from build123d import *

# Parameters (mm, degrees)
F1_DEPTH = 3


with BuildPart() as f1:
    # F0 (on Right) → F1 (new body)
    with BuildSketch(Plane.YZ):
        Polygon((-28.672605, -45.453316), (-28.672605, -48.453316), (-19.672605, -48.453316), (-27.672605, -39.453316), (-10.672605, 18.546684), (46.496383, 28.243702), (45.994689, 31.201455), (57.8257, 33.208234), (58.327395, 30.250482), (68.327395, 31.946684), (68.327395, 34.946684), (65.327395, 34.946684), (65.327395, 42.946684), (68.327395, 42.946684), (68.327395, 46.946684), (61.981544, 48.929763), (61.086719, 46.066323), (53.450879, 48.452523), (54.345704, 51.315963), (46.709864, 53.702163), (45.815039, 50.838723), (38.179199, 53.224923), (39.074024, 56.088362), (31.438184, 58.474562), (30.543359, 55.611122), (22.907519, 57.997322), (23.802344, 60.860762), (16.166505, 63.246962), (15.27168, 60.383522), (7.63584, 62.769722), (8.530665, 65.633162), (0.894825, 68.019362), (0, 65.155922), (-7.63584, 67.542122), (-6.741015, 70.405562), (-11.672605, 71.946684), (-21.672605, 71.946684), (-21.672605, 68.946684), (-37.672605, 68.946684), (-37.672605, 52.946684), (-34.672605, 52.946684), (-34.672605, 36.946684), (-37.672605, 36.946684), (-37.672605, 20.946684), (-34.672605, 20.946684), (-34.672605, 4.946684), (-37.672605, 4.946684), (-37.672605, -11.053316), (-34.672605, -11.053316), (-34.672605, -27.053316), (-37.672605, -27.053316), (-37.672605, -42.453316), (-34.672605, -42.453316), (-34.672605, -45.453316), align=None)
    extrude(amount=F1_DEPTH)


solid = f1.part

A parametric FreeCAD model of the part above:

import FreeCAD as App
import Part
import Sketcher

V = App.Vector

doc = App.newDocument("Part")
body = doc.addObject("PartDesign::Body", "Body")

# Sketch on YZ plane
sketch1 = body.newObject("Sketcher::SketchObject", "Sketch")
sketch1.AttachmentSupport = (doc.getObject("YZ_Plane"), [""])
sketch1.MapMode = "FlatFace"
sketch1.addGeometry([
    Part.LineSegment(V(-28.7, -45.5, 0), V(-28.7, -48.5, 0)),  # 0
    Part.LineSegment(V(-28.7, -48.5, 0), V(-19.7, -48.5, 0)),  # 1
    Part.LineSegment(V(-19.7, -48.5, 0), V(-27.7, -39.5, 0)),  # 2
    Part.LineSegment(V(-27.7, -39.5, 0), V(-10.7, 18.5, 0)),  # 3
    Part.LineSegment(V(-10.7, 18.5, 0), V(46.5, 28.2, 0)),  # 4
    Part.LineSegment(V(46.5, 28.2, 0), V(46, 31.2, 0)),  # 5
    Part.LineSegment(V(46, 31.2, 0), V(57.8, 33.2, 0)),  # 6
    Part.LineSegment(V(57.8, 33.2, 0), V(58.3, 30.3, 0)),  # 7
    Part.LineSegment(V(58.3, 30.3, 0), V(68.3, 31.9, 0)),  # 8
    Part.LineSegment(V(68.3, 31.9, 0), V(68.3, 34.9, 0)),  # 9
    Part.LineSegment(V(68.3, 34.9, 0), V(65.3, 34.9, 0)),  # 10
    Part.LineSegment(V(65.3, 34.9, 0), V(65.3, 42.9, 0)),  # 11
    Part.LineSegment(V(65.3, 42.9, 0), V(68.3, 42.9, 0)),  # 12
    Part.LineSegment(V(68.3, 42.9, 0), V(68.3, 46.9, 0)),  # 13
    Part.LineSegment(V(68.3, 46.9, 0), V(62, 48.9, 0)),  # 14
    Part.LineSegment(V(62, 48.9, 0), V(61.1, 46.1, 0)),  # 15
    Part.LineSegment(V(61.1, 46.1, 0), V(53.5, 48.5, 0)),  # 16
    Part.LineSegment(V(53.5, 48.5, 0), V(54.3, 51.3, 0)),  # 17
    Part.LineSegment(V(54.3, 51.3, 0), V(46.7, 53.7, 0)),  # 18
    Part.LineSegment(V(46.7, 53.7, 0), V(45.8, 50.8, 0)),  # 19
    Part.LineSegment(V(45.8, 50.8, 0), V(38.2, 53.2, 0)),  # 20
    Part.LineSegment(V(38.2, 53.2, 0), V(39.1, 56.1, 0)),  # 21
    Part.LineSegment(V(39.1, 56.1, 0), V(31.4, 58.5, 0)),  # 22
    Part.LineSegment(V(31.4, 58.5, 0), V(30.5, 55.6, 0)),  # 23
    Part.LineSegment(V(30.5, 55.6, 0), V(22.9, 58, 0)),  # 24
    Part.LineSegment(V(22.9, 58, 0), V(23.8, 60.9, 0)),  # 25
    Part.LineSegment(V(23.8, 60.9, 0), V(16.2, 63.2, 0)),  # 26
    Part.LineSegment(V(16.2, 63.2, 0), V(15.3, 60.4, 0)),  # 27
    Part.LineSegment(V(15.3, 60.4, 0), V(7.6, 62.8, 0)),  # 28
    Part.LineSegment(V(7.6, 62.8, 0), V(8.5, 65.6, 0)),  # 29
    Part.LineSegment(V(8.5, 65.6, 0), V(0.9, 68, 0)),  # 30
    Part.LineSegment(V(0.9, 68, 0), V(0, 65.2, 0)),  # 31
    Part.LineSegment(V(0, 65.2, 0), V(-7.6, 67.5, 0)),  # 32
    Part.LineSegment(V(-7.6, 67.5, 0), V(-6.7, 70.4, 0)),  # 33
    Part.LineSegment(V(-6.7, 70.4, 0), V(-11.7, 71.9, 0)),  # 34
    Part.LineSegment(V(-11.7, 71.9, 0), V(-21.7, 71.9, 0)),  # 35
    Part.LineSegment(V(-21.7, 71.9, 0), V(-21.7, 68.9, 0)),  # 36
    Part.LineSegment(V(-21.7, 68.9, 0), V(-37.7, 68.9, 0)),  # 37
    Part.LineSegment(V(-37.7, 68.9, 0), V(-37.7, 52.9, 0)),  # 38
    Part.LineSegment(V(-37.7, 52.9, 0), V(-34.7, 52.9, 0)),  # 39
    Part.LineSegment(V(-34.7, 52.9, 0), V(-34.7, 36.9, 0)),  # 40
    Part.LineSegment(V(-34.7, 36.9, 0), V(-37.7, 36.9, 0)),  # 41
    Part.LineSegment(V(-37.7, 36.9, 0), V(-37.7, 20.9, 0)),  # 42
    Part.LineSegment(V(-37.7, 20.9, 0), V(-34.7, 20.9, 0)),  # 43
    Part.LineSegment(V(-34.7, 20.9, 0), V(-34.7, 4.9, 0)),  # 44
    Part.LineSegment(V(-34.7, 4.9, 0), V(-37.7, 4.9, 0)),  # 45
    Part.LineSegment(V(-37.7, 4.9, 0), V(-37.7, -11.1, 0)),  # 46
    Part.LineSegment(V(-37.7, -11.1, 0), V(-34.7, -11.1, 0)),  # 47
    Part.LineSegment(V(-34.7, -11.1, 0), V(-34.7, -27.1, 0)),  # 48
    Part.LineSegment(V(-34.7, -27.1, 0), V(-37.7, -27.1, 0)),  # 49
    Part.LineSegment(V(-37.7, -27.1, 0), V(-37.7, -42.5, 0)),  # 50
    Part.LineSegment(V(-37.7, -42.5, 0), V(-34.7, -42.5, 0)),  # 51
    Part.LineSegment(V(-34.7, -42.5, 0), V(-34.7, -45.5, 0)),  # 52
    Part.LineSegment(V(-34.7, -45.5, 0), V(-28.7, -45.5, 0)),  # 53
], False)
sketch1.addConstraint([
    Sketcher.Constraint("Coincident", 0, 2, 1, 1),
    Sketcher.Constraint("Coincident", 1, 2, 2, 1),
    Sketcher.Constraint("Coincident", 2, 2, 3, 1),
    Sketcher.Constraint("Coincident", 3, 2, 4, 1),
    Sketcher.Constraint("Coincident", 4, 2, 5, 1),
    Sketcher.Constraint("Coincident", 5, 2, 6, 1),
    Sketcher.Constraint("Coincident", 6, 2, 7, 1),
    Sketcher.Constraint("Coincident", 7, 2, 8, 1),
    Sketcher.Constraint("Coincident", 8, 2, 9, 1),
    Sketcher.Constraint("Coincident", 9, 2, 10, 1),
    Sketcher.Constraint("Coincident", 10, 2, 11, 1),
    Sketcher.Constraint("Coincident", 11, 2, 12, 1),
    Sketcher.Constraint("Coincident", 12, 2, 13, 1),
    Sketcher.Constraint("Coincident", 13, 2, 14, 1),
    Sketcher.Constraint("Coincident", 14, 2, 15, 1),
    Sketcher.Constraint("Coincident", 15, 2, 16, 1),
    Sketcher.Constraint("Coincident", 16, 2, 17, 1),
    Sketcher.Constraint("Coincident", 17, 2, 18, 1),
    Sketcher.Constraint("Coincident", 18, 2, 19, 1),
    Sketcher.Constraint("Coincident", 19, 2, 20, 1),
    Sketcher.Constraint("Coincident", 20, 2, 21, 1),
    Sketcher.Constraint("Coincident", 21, 2, 22, 1),
    Sketcher.Constraint("Coincident", 22, 2, 23, 1),
    Sketcher.Constraint("Coincident", 23, 2, 24, 1),
    Sketcher.Constraint("Coincident", 24, 2, 25, 1),
    Sketcher.Constraint("Coincident", 25, 2, 26, 1),
    Sketcher.Constraint("Coincident", 26, 2, 27, 1),
    Sketcher.Constraint("Coincident", 27, 2, 28, 1),
    Sketcher.Constraint("Coincident", 28, 2, 29, 1),
    Sketcher.Constraint("Coincident", 29, 2, 30, 1),
    Sketcher.Constraint("Coincident", 30, 2, 31, 1),
    Sketcher.Constraint("Coincident", 31, 2, 32, 1),
    Sketcher.Constraint("Coincident", 32, 2, 33, 1),
    Sketcher.Constraint("Coincident", 33, 2, 34, 1),
    Sketcher.Constraint("Coincident", 34, 2, 35, 1),
    Sketcher.Constraint("Coincident", 35, 2, 36, 1),
    Sketcher.Constraint("Coincident", 36, 2, 37, 1),
    Sketcher.Constraint("Coincident", 37, 2, 38, 1),
    Sketcher.Constraint("Coincident", 38, 2, 39, 1),
    Sketcher.Constraint("Coincident", 39, 2, 40, 1),
    Sketcher.Constraint("Coincident", 40, 2, 41, 1),
    Sketcher.Constraint("Coincident", 41, 2, 42, 1),
    Sketcher.Constraint("Coincident", 42, 2, 43, 1),
    Sketcher.Constraint("Coincident", 43, 2, 44, 1),
    Sketcher.Constraint("Coincident", 44, 2, 45, 1),
    Sketcher.Constraint("Coincident", 45, 2, 46, 1),
    Sketcher.Constraint("Coincident", 46, 2, 47, 1),
    Sketcher.Constraint("Coincident", 47, 2, 48, 1),
    Sketcher.Constraint("Coincident", 48, 2, 49, 1),
    Sketcher.Constraint("Coincident", 49, 2, 50, 1),
    Sketcher.Constraint("Coincident", 50, 2, 51, 1),
    Sketcher.Constraint("Coincident", 51, 2, 52, 1),
    Sketcher.Constraint("Coincident", 52, 2, 53, 1),
    Sketcher.Constraint("Coincident", 53, 2, 0, 1),
    Sketcher.Constraint("Vertical", 0),
    Sketcher.Constraint("Horizontal", 1),
    Sketcher.Constraint("Vertical", 9),
    Sketcher.Constraint("Horizontal", 10),
    Sketcher.Constraint("Vertical", 11),
    Sketcher.Constraint("Horizontal", 12),
    Sketcher.Constraint("Vertical", 13),
    Sketcher.Constraint("Horizontal", 35),
    Sketcher.Constraint("Vertical", 36),
    Sketcher.Constraint("Horizontal", 37),
    Sketcher.Constraint("Vertical", 38),
    Sketcher.Constraint("Horizontal", 39),
    Sketcher.Constraint("Vertical", 40),
    Sketcher.Constraint("Horizontal", 41),
    Sketcher.Constraint("Vertical", 42),
    Sketcher.Constraint("Horizontal", 43),
    Sketcher.Constraint("Vertical", 44),
    Sketcher.Constraint("Horizontal", 45),
    Sketcher.Constraint("Vertical", 46),
    Sketcher.Constraint("Horizontal", 47),
    Sketcher.Constraint("Vertical", 48),
    Sketcher.Constraint("Horizontal", 49),
    Sketcher.Constraint("Vertical", 50),
    Sketcher.Constraint("Horizontal", 51),
    Sketcher.Constraint("Vertical", 52),
    Sketcher.Constraint("Horizontal", 53),
    Sketcher.Constraint("PointOnObject", 31, 2, -2),
    Sketcher.Constraint("Perpendicular", 4, 5),
    Sketcher.Constraint("Perpendicular", 5, 6),
    Sketcher.Constraint("Perpendicular", 6, 7),
    Sketcher.Constraint("Perpendicular", 7, 8),
    Sketcher.Constraint("Perpendicular", 14, 15),
    Sketcher.Constraint("Perpendicular", 15, 16),
    Sketcher.Constraint("Perpendicular", 16, 17),
    Sketcher.Constraint("Perpendicular", 17, 18),
    Sketcher.Constraint("Perpendicular", 18, 19),
    Sketcher.Constraint("Perpendicular", 19, 20),
    Sketcher.Constraint("Perpendicular", 20, 21),
    Sketcher.Constraint("Perpendicular", 21, 22),
    Sketcher.Constraint("Perpendicular", 22, 23),
    Sketcher.Constraint("Perpendicular", 23, 24),
    Sketcher.Constraint("Perpendicular", 24, 25),
    Sketcher.Constraint("Perpendicular", 25, 26),
    Sketcher.Constraint("Perpendicular", 26, 27),
    Sketcher.Constraint("Perpendicular", 27, 28),
    Sketcher.Constraint("Perpendicular", 28, 29),
    Sketcher.Constraint("Perpendicular", 29, 30),
    Sketcher.Constraint("Perpendicular", 30, 31),
    Sketcher.Constraint("Perpendicular", 31, 32),
    Sketcher.Constraint("Perpendicular", 32, 33),
    Sketcher.Constraint("Perpendicular", 33, 34),
    Sketcher.Constraint("Vertical", 9, 2, 12, 2),
    Sketcher.Constraint("Vertical", 38, 2, 41, 2),
    Sketcher.Constraint("Vertical", 40, 2, 43, 2),
    Sketcher.Constraint("Vertical", 42, 2, 45, 2),
    Sketcher.Constraint("Vertical", 44, 2, 47, 2),
    Sketcher.Constraint("Vertical", 46, 2, 49, 2),
    Sketcher.Constraint("Vertical", 48, 2, 51, 2),
    Sketcher.Constraint("Equal", 12, 39),
    Sketcher.Constraint("Equal", 51, 0),
    Sketcher.Constraint("Equal", 0, 9),
    Sketcher.Constraint("Equal", 9, 36),
    Sketcher.Constraint("Equal", 37, 38),
    Sketcher.Constraint("Equal", 38, 40),
    Sketcher.Constraint("Equal", 40, 42),
    Sketcher.Constraint("Equal", 42, 44),
    Sketcher.Constraint("Equal", 44, 46),
    Sketcher.Constraint("Equal", 46, 48),
    Sketcher.Constraint("Equal", 36, 52),
    Sketcher.Constraint("Equal", 5, 7),
    Sketcher.Constraint("Equal", 7, 15),
    Sketcher.Constraint("Equal", 15, 17),
    Sketcher.Constraint("Equal", 16, 18),
    Sketcher.Constraint("Equal", 17, 19),
    Sketcher.Constraint("Equal", 18, 20),
    Sketcher.Constraint("Equal", 19, 21),
    Sketcher.Constraint("Equal", 20, 22),
    Sketcher.Constraint("Equal", 21, 23),
    Sketcher.Constraint("Equal", 22, 24),
    Sketcher.Constraint("Equal", 23, 25),
    Sketcher.Constraint("Equal", 24, 26),
    Sketcher.Constraint("Equal", 25, 27),
    Sketcher.Constraint("Equal", 26, 28),
    Sketcher.Constraint("Equal", 27, 29),
    Sketcher.Constraint("Equal", 28, 30),
    Sketcher.Constraint("Equal", 29, 31),
    Sketcher.Constraint("Equal", 30, 32),
    Sketcher.Constraint("Equal", 31, 33),
    Sketcher.Constraint("DistanceX", 1, 1, 1, 2, 9.0),
    Sketcher.Constraint("DistanceX", 10, 2, 10, 1, 3.0),
    Sketcher.Constraint("DistanceX", 35, 2, 35, 1, 10.0),
    Sketcher.Constraint("DistanceX", 37, 2, 37, 1, 16.0),
    Sketcher.Constraint("DistanceX", 53, 1, 53, 2, 6.0),
    Sketcher.Constraint("DistanceY", 11, 1, 11, 2, 8.0),
    Sketcher.Constraint("DistanceY", 13, 1, 13, 2, 4.0),
    Sketcher.Constraint("Distance", 5, 3.0),
    Sketcher.Constraint("Distance", 6, 11.999999),
    Sketcher.Constraint("Distance", 16, 8.0),
    Sketcher.Constraint("DistanceY", 50, 2, 50, 1, 15.4),
    Sketcher.Constraint("DistanceX", 0, 2, 2, 2, 1.0),
    Sketcher.Constraint("DistanceY", 0, 2, 2, 2, 9.0),
    Sketcher.Constraint("DistanceX", 2, 2, 3, 2, 17.0),
    Sketcher.Constraint("DistanceY", 2, 2, 3, 2, 58.0),
    Sketcher.Constraint("DistanceX", 3, 2, 7, 2, 69.0),
    Sketcher.Constraint("DistanceX", 7, 2, 8, 2, 10.0),
    Sketcher.Constraint("DistanceY", 3, 2, 8, 2, 13.4),
    Sketcher.Constraint("DistanceY", -1, 1, 4, 2, 28.243702),
    Sketcher.Constraint("DistanceX", -1, 1, 6, 2, 57.8257),
])
pad1 = body.newObject("PartDesign::Pad", "Pad")
pad1.Profile = sketch1
pad1.Length = 3

doc.recompute()
